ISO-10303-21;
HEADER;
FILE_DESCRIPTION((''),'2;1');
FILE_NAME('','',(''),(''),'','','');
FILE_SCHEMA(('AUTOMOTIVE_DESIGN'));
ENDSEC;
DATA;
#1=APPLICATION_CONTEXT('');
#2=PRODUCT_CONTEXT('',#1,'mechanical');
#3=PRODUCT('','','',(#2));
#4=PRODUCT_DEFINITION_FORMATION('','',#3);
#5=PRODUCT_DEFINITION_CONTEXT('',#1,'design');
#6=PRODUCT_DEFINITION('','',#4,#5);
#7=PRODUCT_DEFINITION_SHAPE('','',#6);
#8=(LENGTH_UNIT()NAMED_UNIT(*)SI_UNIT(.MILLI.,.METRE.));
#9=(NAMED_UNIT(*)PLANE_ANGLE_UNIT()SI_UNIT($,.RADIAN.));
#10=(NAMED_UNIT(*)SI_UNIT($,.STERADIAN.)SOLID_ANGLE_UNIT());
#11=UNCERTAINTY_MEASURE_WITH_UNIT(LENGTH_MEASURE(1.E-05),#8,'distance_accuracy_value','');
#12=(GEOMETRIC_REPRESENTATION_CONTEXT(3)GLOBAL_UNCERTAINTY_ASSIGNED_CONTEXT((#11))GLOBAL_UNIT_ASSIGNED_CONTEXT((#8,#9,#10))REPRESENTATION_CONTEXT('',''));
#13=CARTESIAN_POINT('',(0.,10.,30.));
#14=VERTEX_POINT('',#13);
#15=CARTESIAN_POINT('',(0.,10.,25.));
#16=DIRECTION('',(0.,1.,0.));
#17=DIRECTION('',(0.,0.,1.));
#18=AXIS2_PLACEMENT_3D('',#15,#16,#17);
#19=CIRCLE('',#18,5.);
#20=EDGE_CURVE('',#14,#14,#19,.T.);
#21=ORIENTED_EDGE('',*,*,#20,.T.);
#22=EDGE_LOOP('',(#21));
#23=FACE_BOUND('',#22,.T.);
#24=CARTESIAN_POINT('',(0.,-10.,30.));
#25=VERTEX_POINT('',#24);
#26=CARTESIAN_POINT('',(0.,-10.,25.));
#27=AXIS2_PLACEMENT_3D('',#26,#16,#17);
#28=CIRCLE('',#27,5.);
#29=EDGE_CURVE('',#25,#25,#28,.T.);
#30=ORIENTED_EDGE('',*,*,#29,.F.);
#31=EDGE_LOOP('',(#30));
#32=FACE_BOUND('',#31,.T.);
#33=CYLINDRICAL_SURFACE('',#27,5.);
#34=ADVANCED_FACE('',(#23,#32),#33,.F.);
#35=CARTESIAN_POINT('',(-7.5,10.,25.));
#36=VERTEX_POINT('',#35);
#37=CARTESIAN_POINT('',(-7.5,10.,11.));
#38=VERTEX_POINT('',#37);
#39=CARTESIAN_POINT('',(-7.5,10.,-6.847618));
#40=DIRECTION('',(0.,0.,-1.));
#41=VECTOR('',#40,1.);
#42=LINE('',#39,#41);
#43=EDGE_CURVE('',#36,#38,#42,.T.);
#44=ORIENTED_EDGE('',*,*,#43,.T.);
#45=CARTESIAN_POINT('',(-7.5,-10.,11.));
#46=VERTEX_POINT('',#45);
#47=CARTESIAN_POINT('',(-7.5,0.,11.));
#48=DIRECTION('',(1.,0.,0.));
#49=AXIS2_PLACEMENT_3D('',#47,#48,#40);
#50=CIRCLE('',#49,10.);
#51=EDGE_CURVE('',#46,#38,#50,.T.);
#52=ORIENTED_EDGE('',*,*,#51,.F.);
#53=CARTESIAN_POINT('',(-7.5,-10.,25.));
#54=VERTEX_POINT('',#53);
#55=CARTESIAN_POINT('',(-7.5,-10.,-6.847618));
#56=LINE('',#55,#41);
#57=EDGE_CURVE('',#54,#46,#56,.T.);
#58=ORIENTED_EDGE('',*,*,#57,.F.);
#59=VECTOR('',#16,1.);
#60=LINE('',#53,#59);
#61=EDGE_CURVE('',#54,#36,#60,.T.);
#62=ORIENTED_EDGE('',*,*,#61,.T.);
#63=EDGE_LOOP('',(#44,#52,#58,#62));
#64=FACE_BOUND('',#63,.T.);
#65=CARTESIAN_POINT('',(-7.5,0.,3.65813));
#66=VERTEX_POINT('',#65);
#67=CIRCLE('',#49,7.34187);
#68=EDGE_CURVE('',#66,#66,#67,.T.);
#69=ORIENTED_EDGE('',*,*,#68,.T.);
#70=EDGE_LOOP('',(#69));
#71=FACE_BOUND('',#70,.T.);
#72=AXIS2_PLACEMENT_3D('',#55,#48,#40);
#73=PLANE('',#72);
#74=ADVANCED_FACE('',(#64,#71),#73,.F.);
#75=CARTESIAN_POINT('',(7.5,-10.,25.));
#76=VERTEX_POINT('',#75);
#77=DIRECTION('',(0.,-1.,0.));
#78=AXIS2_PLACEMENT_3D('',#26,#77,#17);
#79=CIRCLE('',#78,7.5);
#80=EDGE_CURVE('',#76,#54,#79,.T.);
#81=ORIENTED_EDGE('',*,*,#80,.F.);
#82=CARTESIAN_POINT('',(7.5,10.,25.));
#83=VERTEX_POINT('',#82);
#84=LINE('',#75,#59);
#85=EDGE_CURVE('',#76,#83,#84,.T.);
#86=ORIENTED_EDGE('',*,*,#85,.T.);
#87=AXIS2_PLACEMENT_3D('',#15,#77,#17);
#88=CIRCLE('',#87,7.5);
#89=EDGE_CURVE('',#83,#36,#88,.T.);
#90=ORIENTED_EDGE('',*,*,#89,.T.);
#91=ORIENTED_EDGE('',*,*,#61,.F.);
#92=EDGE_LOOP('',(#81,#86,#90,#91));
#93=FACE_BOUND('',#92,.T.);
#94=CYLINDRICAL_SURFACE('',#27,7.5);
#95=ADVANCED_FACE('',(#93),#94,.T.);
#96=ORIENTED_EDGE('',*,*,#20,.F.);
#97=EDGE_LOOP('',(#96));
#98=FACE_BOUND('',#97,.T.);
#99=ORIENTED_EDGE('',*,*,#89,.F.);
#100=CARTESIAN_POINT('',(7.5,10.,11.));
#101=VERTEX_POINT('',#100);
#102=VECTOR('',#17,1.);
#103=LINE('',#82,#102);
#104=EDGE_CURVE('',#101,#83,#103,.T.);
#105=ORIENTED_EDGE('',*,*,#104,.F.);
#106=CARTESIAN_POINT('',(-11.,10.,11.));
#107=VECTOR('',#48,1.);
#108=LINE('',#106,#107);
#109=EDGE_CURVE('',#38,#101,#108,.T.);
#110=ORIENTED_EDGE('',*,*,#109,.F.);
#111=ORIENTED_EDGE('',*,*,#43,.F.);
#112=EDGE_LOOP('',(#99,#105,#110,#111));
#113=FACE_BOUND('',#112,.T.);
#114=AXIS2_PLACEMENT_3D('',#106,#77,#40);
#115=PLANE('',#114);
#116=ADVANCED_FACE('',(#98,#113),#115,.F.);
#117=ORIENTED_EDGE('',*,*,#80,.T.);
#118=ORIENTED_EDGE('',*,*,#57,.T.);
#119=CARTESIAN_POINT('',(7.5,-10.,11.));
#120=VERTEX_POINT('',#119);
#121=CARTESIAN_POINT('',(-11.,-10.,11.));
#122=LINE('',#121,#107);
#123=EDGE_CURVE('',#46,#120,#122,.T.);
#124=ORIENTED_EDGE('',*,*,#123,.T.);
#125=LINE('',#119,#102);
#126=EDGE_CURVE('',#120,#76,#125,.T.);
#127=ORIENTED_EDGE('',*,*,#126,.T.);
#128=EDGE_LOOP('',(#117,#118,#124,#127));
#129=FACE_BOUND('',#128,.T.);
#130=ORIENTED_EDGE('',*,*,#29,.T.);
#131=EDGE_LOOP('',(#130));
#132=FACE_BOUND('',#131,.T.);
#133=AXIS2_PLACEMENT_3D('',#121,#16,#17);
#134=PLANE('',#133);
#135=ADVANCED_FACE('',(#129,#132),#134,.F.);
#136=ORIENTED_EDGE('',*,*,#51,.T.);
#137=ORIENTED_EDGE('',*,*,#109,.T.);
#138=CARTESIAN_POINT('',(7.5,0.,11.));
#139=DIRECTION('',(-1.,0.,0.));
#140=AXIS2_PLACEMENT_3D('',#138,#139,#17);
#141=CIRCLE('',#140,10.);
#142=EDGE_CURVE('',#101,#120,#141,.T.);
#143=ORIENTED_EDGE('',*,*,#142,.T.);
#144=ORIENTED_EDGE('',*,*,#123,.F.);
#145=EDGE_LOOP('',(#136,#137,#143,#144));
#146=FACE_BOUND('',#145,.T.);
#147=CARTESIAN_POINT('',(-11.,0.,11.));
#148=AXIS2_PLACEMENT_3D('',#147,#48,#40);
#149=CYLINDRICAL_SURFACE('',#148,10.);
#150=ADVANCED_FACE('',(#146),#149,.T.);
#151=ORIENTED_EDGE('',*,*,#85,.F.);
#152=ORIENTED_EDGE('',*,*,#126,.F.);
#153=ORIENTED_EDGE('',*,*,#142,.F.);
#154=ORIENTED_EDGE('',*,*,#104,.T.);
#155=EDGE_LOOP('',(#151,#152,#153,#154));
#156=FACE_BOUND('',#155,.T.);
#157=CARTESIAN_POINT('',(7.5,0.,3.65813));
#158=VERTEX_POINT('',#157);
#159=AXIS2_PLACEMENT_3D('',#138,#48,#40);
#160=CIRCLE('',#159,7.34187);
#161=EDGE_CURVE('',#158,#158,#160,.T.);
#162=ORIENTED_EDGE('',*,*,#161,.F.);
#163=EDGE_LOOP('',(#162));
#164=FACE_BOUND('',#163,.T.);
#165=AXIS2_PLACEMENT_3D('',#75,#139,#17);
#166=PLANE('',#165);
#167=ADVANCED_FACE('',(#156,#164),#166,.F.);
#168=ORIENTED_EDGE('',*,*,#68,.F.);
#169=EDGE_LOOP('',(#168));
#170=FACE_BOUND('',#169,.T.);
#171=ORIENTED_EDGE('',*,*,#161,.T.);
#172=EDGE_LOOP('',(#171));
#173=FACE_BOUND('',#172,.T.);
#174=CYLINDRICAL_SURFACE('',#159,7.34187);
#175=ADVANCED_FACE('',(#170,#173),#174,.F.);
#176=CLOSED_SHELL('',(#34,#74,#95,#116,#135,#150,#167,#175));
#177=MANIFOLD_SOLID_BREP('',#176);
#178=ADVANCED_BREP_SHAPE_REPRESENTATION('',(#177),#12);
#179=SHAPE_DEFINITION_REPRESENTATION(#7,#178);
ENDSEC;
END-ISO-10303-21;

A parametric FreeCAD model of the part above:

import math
import FreeCAD as App
import Part
import Sketcher

V = App.Vector
Q = App.Units.Quantity

doc = App.newDocument("Part")
body = doc.addObject("PartDesign::Body", "Body")

sketch1 = body.newObject("Sketcher::SketchObject", "Sketch")
sketch1.AttachmentSupport = (doc.getObject("XY_Plane"), [""])
sketch1.MapMode = "FlatFace"
sketch1.addGeometry([
    Part.LineSegment(V(-11, 11, 0), V(-11, -11, 0)),
    Part.LineSegment(V(-11, -11, 0), V(11, -11, 0)),
    Part.LineSegment(V(11, -11, 0), V(11, 11, 0)),
    Part.LineSegment(V(11, 11, 0), V(-11, 11, 0)),
], False)
sketch1.addConstraint([
    Sketcher.Constraint("Coincident", 0, 2, 1, 1),
    Sketcher.Constraint("Coincident", 1, 2, 2, 1),
    Sketcher.Constraint("Coincident", 2, 2, 3, 1),
    Sketcher.Constraint("Coincident", 3, 2, 0, 1),
    Sketcher.Constraint("Vertical", 0),
    Sketcher.Constraint("Horizontal", 1),
    Sketcher.Constraint("Vertical", 2),
    Sketcher.Constraint("Horizontal", 3),
    Sketcher.Constraint("Symmetric", 0, 2, 2, 2, -1, 1),
    Sketcher.Constraint("Equal", 3, 0),
    Sketcher.Constraint("DistanceX", 1, 1, 1, 2, Q("22 mm")),
])
pad1 = body.newObject("PartDesign::Pad", "Pad")
pad1.Profile = sketch1
pad1.Length = 40

sketch2 = body.newObject("Sketcher::SketchObject", "Sketch001")
sketch2.AttachmentSupport = (doc.getObject("YZ_Plane"), [""])
sketch2.MapMode = "FlatFace"
sketch2.addGeometry([
    Part.LineSegment(V(-10, 11, 0), V(-10, 49, 0)),
    Part.LineSegment(V(-10, 49, 0), V(-17, 49, 0)),
    Part.LineSegment(V(-17, 49, 0), V(-17, -9, 0)),
    Part.LineSegment(V(-17, -9, 0), V(23, -9, 0)),
    Part.LineSegment(V(23, -9, 0), V(23, 49, 0)),
    Part.LineSegment(V(23, 49, 0), V(10, 49, 0)),
    Part.LineSegment(V(10, 49, 0), V(10, 11, 0)),
    Part.ArcOfCircle(Part.Circle(V(0, 11, 0), V(0, 0, 1), 10), math.radians(180), math.radians(360)),
], False)
sketch2.addConstraint([
    Sketcher.Constraint("Coincident", 0, 2, 1, 1),
    Sketcher.Constraint("Coincident", 1, 2, 2, 1),
    Sketcher.Constraint("Coincident", 2, 2, 3, 1),
    Sketcher.Constraint("Coincident", 3, 2, 4, 1),
    Sketcher.Constraint("Coincident", 4, 2, 5, 1),
    Sketcher.Constraint("Coincident", 5, 2, 6, 1),
    Sketcher.Constraint("Tangent", 6, 2, 7, 2),
    Sketcher.Constraint("Tangent", 7, 1, 0, 1),
    Sketcher.Constraint("Vertical", 0),
    Sketcher.Constraint("Horizontal", 1),
    Sketcher.Constraint("Vertical", 2),
    Sketcher.Constraint("Horizontal", 3),
    Sketcher.Constraint("Vertical", 4),
    Sketcher.Constraint("Horizontal", 5),
    Sketcher.Constraint("Vertical", 6),
    Sketcher.Constraint("Symmetric", 0, 2, 5, 2, -2),
    Sketcher.Constraint("Radius", 7, Q("10 mm")),
    Sketcher.Constraint("DistanceY", -1, 1, 7, 3, Q("11 mm")),
    Sketcher.Constraint("DistanceY", 0, 1, 0, 2, Q("38.42042 mm")),
    Sketcher.Constraint("DistanceY", 2, 2, 2, 1, Q("58.036642 mm")),
    Sketcher.Constraint("DistanceX", 1, 2, 1, 1, Q("6.887372 mm")),
    Sketcher.Constraint("DistanceX", 3, 1, 3, 2, Q("39.933778 mm")),
])
pocket1 = body.newObject("PartDesign::Pocket", "Pocket")
pocket1.Profile = sketch2
pocket1.Type = "ThroughAll"
pocket1.Midplane = True

sketch3 = body.newObject("Sketcher::SketchObject", "Sketch002")
sketch3.AttachmentSupport = (doc.getObject("XZ_Plane"), [""])
sketch3.MapMode = "FlatFace"
sketch3.addGeometry([
    Part.Circle(V(0, 25, 0), V(0, 0, 1), 5),
    Part.LineSegment(V(-8, -7, 0), V(-19, -7, 0)),
    Part.LineSegment(V(-19, -7, 0), V(-19, 44, 0)),
    Part.LineSegment(V(-19, 44, 0), V(23, 44, 0)),
    Part.LineSegment(V(23, 44, 0), V(23, -7, 0)),
    Part.LineSegment(V(23, -7, 0), V(8, -7, 0)),
    Part.LineSegment(V(8, -7, 0), V(8, 25, 0)),
    Part.ArcOfCircle(Part.Circle(V(0, 25, 0), V(0, 0, 1), 8), math.radians(0), math.radians(180)),
    Part.LineSegment(V(-8, 25, 0), V(-8, -7, 0)),
], False)
sketch3.addConstraint([
    Sketcher.Constraint("Coincident", 1, 2, 2, 1),
    Sketcher.Constraint("Coincident", 2, 2, 3, 1),
    Sketcher.Constraint("Coincident", 3, 2, 4, 1),
    Sketcher.Constraint("Coincident", 4, 2, 5, 1),
    Sketcher.Constraint("Coincident", 5, 2, 6, 1),
    Sketcher.Constraint("Tangent", 6, 2, 7, 1),
    Sketcher.Constraint("Tangent", 7, 2, 8, 1),
    Sketcher.Constraint("Coincident", 8, 2, 1, 1),
    Sketcher.Constraint("Horizontal", 1),
    Sketcher.Constraint("Vertical", 2),
    Sketcher.Constraint("Horizontal", 3),
    Sketcher.Constraint("Vertical", 4),
    Sketcher.Constraint("Horizontal", 5),
    Sketcher.Constraint("Vertical", 6),
    Sketcher.Constraint("Vertical", 8),
    Sketcher.Constraint("Coincident", 7, 3, 0, 3),
    Sketcher.Constraint("Symmetric", 5, 2, 8, 2, -2),
    Sketcher.Constraint("Diameter", 0, Q("10 mm")),
    Sketcher.Constraint("Radius", 7, Q("7.5 mm")),
    Sketcher.Constraint("DistanceY", -1, 1, 0, 3, Q("25 mm")),
    Sketcher.Constraint("DistanceX", 5, 2, 5, 1, Q("15.80889 mm")),
    Sketcher.Constraint("DistanceY", 6, 1, 6, 2, Q("31.847618 mm")),
    Sketcher.Constraint("DistanceX", 1, 2, 1, 1, Q("11.344545 mm")),
    Sketcher.Constraint("DistanceY", 2, 1, 2, 2, Q("51.177866 mm")),
])
pocket2 = body.newObject("PartDesign::Pocket", "Pocket001")
pocket2.Profile = sketch3
pocket2.Type = "ThroughAll"
pocket2.Midplane = True

sketch4 = body.newObject("Sketcher::SketchObject", "Sketch003")
sketch4.AttachmentSupport = (doc.getObject("YZ_Plane"), [""])
sketch4.MapMode = "FlatFace"
sketch4.AttachmentOffset = App.Placement(V(0, 0, 7.5), App.Rotation())
sketch4.addGeometry(Part.Circle(V(0, 11, 0), V(0, 0, 1), 7), False)
sketch4.addConstraint([
    Sketcher.Constraint("PointOnObject", 0, 3, -2),
    Sketcher.Constraint("DistanceY", -1, 1, 0, 3, Q("11 mm")),
    Sketcher.Constraint("Diameter", 0, Q("14.68374 mm")),
])
doc.recompute()
hole = body.newObject("PartDesign::Hole", "Hole")
hole.Profile = sketch4
hole.ThreadType = "None"
hole.Diameter = 14.68374
hole.DepthType = "ThroughAll"

doc.recompute()
